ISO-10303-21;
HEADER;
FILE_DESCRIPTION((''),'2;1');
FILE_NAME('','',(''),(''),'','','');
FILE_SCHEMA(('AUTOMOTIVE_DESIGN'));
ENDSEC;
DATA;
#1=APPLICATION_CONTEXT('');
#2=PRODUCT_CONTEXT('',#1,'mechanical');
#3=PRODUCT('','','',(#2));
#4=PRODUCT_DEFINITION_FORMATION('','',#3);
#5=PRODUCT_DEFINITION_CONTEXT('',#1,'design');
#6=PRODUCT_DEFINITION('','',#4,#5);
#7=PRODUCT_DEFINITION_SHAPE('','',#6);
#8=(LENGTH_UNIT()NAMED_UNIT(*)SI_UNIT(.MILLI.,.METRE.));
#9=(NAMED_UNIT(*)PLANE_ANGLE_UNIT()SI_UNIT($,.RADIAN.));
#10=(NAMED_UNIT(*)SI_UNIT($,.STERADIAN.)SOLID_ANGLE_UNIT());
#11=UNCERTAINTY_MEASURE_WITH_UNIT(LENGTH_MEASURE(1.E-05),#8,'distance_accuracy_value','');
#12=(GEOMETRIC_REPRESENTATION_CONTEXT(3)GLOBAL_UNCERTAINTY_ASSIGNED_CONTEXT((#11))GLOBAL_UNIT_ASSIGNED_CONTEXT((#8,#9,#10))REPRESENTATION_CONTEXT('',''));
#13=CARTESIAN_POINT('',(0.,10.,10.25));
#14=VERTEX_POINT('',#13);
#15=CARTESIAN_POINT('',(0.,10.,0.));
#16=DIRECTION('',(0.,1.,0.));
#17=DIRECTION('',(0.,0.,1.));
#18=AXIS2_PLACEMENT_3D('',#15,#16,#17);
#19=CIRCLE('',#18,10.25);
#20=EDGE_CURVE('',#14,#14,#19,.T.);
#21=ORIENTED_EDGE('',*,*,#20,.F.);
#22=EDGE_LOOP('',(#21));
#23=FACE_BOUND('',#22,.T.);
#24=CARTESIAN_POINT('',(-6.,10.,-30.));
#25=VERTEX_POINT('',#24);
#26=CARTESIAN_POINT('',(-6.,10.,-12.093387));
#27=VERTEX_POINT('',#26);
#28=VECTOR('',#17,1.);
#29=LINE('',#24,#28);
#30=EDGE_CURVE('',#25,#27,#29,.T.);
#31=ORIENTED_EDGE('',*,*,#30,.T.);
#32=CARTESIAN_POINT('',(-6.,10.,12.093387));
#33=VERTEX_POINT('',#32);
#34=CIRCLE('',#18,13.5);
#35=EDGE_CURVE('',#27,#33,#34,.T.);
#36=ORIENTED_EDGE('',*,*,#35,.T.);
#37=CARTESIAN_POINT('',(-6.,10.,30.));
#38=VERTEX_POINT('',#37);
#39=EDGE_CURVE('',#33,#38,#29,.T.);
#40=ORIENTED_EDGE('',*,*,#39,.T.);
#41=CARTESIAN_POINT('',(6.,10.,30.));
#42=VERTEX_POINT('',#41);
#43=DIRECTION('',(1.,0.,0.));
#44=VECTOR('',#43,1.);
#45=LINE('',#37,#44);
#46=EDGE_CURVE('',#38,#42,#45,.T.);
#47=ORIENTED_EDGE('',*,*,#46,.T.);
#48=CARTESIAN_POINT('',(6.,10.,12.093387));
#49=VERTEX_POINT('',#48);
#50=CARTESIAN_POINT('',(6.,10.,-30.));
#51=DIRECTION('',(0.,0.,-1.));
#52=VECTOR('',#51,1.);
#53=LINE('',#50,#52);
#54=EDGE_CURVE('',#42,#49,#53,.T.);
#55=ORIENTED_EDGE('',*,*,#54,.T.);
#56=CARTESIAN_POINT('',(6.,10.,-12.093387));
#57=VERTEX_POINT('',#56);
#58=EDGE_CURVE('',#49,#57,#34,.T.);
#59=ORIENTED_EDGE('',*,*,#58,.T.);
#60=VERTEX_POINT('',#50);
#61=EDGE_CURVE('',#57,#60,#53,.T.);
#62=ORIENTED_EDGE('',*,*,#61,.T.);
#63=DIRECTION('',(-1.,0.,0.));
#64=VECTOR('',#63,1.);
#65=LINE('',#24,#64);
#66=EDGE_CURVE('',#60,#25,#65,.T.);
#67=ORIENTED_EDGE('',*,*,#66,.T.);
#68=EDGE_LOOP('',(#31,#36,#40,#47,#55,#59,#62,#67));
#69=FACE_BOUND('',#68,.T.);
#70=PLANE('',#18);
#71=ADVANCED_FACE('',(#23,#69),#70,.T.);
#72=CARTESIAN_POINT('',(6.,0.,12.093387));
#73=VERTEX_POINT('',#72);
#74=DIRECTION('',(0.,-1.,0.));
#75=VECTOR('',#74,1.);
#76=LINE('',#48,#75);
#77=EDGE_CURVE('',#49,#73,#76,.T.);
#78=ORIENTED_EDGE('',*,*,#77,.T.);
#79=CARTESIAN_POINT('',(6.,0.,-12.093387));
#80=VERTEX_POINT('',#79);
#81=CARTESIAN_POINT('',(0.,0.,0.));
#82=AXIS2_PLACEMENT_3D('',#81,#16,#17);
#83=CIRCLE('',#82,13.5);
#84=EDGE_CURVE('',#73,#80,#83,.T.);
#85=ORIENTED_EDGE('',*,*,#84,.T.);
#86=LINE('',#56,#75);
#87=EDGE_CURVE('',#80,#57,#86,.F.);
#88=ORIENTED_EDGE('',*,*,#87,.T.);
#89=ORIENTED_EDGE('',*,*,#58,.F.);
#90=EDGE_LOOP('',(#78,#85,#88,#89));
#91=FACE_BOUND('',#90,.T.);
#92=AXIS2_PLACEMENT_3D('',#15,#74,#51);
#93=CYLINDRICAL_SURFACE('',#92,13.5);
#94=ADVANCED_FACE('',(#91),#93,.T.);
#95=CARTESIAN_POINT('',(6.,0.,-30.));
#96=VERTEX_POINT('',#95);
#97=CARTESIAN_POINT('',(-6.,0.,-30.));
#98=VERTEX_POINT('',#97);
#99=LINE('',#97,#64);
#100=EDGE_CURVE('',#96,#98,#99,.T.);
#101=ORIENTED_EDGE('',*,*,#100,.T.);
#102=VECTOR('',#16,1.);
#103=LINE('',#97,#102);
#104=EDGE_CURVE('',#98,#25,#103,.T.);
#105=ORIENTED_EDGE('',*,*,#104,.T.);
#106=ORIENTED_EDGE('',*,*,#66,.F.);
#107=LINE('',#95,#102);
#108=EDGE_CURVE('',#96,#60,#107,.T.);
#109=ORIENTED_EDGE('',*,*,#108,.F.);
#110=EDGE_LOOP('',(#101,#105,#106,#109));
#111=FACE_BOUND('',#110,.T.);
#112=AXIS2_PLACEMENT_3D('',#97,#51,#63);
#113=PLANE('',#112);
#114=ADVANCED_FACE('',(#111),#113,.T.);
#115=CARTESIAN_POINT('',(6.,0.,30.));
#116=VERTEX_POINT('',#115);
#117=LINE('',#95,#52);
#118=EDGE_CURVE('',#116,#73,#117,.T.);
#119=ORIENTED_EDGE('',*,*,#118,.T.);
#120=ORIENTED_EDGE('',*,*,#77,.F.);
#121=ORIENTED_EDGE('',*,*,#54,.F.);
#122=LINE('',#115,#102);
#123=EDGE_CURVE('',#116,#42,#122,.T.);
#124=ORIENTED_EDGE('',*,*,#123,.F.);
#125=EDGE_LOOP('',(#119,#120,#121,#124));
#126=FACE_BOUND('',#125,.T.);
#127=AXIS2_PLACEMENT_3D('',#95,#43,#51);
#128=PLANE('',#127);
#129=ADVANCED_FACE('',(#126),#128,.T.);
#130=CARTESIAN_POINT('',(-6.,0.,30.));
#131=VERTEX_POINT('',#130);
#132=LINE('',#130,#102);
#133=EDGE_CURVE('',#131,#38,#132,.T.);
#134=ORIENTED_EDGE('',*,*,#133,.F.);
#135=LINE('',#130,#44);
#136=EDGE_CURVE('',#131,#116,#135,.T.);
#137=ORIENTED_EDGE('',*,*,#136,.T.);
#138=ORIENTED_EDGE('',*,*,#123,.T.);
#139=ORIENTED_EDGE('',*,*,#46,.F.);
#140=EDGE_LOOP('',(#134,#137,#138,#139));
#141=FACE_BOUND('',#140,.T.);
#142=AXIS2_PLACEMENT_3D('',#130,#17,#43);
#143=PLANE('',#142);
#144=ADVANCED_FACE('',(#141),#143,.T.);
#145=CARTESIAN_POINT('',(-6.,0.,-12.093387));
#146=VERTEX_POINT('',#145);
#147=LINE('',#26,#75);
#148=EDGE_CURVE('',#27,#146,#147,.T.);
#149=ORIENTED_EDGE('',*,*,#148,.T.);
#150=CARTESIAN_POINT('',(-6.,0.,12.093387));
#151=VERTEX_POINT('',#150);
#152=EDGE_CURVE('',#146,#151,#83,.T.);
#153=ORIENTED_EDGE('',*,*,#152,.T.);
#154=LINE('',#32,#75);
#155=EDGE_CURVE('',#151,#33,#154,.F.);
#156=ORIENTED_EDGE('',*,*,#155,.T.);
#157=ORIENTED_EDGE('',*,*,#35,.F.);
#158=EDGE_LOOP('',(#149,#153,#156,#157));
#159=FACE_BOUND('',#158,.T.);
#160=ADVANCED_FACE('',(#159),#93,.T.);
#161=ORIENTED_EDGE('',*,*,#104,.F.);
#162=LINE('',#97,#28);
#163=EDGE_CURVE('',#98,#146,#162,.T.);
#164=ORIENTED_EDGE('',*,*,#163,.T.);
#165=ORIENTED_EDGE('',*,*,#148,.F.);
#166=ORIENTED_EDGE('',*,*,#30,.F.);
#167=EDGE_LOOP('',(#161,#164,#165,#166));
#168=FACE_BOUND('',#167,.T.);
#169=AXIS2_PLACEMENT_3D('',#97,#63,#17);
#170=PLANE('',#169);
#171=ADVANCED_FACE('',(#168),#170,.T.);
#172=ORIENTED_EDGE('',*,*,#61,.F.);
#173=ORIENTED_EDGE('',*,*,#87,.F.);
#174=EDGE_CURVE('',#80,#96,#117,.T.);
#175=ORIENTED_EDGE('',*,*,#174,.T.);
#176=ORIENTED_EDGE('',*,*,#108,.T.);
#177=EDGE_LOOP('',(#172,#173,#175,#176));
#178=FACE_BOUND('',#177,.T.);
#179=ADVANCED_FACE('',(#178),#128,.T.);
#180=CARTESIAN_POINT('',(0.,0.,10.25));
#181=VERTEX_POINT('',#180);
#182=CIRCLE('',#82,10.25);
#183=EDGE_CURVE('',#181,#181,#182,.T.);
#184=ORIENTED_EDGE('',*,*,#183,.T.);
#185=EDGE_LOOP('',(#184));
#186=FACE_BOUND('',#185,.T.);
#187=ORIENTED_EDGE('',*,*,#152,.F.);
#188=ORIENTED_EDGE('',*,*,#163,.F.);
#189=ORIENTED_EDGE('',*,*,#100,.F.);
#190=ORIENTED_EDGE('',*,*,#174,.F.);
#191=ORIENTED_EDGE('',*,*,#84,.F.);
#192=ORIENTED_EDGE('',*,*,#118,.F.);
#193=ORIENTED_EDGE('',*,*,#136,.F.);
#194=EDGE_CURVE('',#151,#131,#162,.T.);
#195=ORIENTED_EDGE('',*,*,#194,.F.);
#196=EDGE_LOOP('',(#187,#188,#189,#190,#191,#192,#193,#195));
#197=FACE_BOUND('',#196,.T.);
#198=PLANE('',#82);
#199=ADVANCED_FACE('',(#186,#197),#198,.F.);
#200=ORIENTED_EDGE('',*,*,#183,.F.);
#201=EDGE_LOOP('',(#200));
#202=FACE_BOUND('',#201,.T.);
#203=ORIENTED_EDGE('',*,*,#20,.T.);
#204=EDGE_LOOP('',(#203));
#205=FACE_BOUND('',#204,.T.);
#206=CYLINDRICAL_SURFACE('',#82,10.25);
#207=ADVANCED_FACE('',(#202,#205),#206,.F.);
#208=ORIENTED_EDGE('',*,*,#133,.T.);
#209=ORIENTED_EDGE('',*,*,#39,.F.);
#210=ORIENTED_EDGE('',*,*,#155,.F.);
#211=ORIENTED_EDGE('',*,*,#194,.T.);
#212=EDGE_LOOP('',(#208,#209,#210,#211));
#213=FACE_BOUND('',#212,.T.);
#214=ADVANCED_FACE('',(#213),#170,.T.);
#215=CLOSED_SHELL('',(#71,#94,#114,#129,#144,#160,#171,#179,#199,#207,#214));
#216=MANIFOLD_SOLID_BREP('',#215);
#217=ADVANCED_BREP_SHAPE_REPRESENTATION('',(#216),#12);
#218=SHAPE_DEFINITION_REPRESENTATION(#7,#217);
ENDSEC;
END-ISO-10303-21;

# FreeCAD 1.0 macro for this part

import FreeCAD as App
import Part
import Sketcher

V = App.Vector

doc = App.newDocument("Part")
params = doc.addObject("Spreadsheet::Sheet", "Params")
for row, (alias, value) in enumerate([
    ("sketch1_diameter", "27 mm"),
    ("pad1_length", "10 mm"),
    ("sketch2_width", "12 mm"),
    ("sketch2_height", "60 mm"),
    ("pad2_length", "10 mm"),
    ("sketch3_diameter", "20.5 mm"),
    ("pocket1_length", "10 mm"),
], start=1):
    params.set(f"A{row}", alias)
    params.set(f"B{row}", "=" + value)
    params.setAlias(f"B{row}", alias)

body = doc.addObject("PartDesign::Body", "Body")

# Sketch on XZ plane
sketch1 = doc.addObject("Sketcher::SketchObject", "Sketch")
body.addObject(sketch1)
sketch1.AttachmentSupport = (doc.XZ_Plane, [""])
sketch1.MapMode = "FlatFace"
sketch1.addGeometry(Part.Circle(V(0, 0, 0), V(0, 0, 1), 13.5), False)
sketch1.addConstraint(Sketcher.Constraint("Coincident", 0, 3, -1, 1))
sketch1.addConstraint(Sketcher.Constraint("Diameter", 0, 27.0))
sketch1.setExpression("Constraints[1]", "Params.sketch1_diameter")
pad1 = doc.addObject("PartDesign::Pad", "Pad")
body.addObject(pad1)
pad1.Profile = sketch1
pad1.setExpression("Length", "Params.pad1_length")
pad1.Reversed = True

# Sketch on XZ plane
sketch2 = doc.addObject("Sketcher::SketchObject", "Sketch001")
body.addObject(sketch2)
sketch2.AttachmentSupport = (doc.XZ_Plane, [""])
sketch2.MapMode = "FlatFace"
sketch2.AttachmentOffset = App.Placement(V(0, 0, -10), App.Rotation())
sketch2.addGeometry(Part.LineSegment(V(-6, -30, 0), V(-6, 30, 0)), False)
sketch2.addGeometry(Part.LineSegment(V(-6, 30, 0), V(6, 30, 0)), False)
sketch2.addGeometry(Part.LineSegment(V(6, 30, 0), V(6, -30, 0)), False)
sketch2.addGeometry(Part.LineSegment(V(6, -30, 0), V(-6, -30, 0)), False)
sketch2.addConstraint(Sketcher.Constraint("Coincident", 0, 2, 1, 1))
sketch2.addConstraint(Sketcher.Constraint("Coincident", 1, 2, 2, 1))
sketch2.addConstraint(Sketcher.Constraint("Coincident", 2, 2, 3, 1))
sketch2.addConstraint(Sketcher.Constraint("Coincident", 3, 2, 0, 1))
sketch2.addConstraint(Sketcher.Constraint("Vertical", 0))
sketch2.addConstraint(Sketcher.Constraint("Horizontal", 1))
sketch2.addConstraint(Sketcher.Constraint("Vertical", 2))
sketch2.addConstraint(Sketcher.Constraint("Horizontal", 3))
sketch2.addConstraint(Sketcher.Constraint("Symmetric", 0, 2, 2, 2, -1, 1))
sketch2.addConstraint(Sketcher.Constraint("DistanceX", 1, 1, 1, 2, 12.0))
sketch2.addConstraint(Sketcher.Constraint("DistanceY", 0, 1, 0, 2, 60.0))
sketch2.setExpression("Constraints[9]", "Params.sketch2_width")
sketch2.setExpression("Constraints[10]", "Params.sketch2_height")
pad2 = doc.addObject("PartDesign::Pad", "Pad001")
body.addObject(pad2)
pad2.Profile = sketch2
pad2.setExpression("Length", "Params.pad2_length")

# Sketch on XZ plane
sketch3 = doc.addObject("Sketcher::SketchObject", "Sketch002")
body.addObject(sketch3)
sketch3.AttachmentSupport = (doc.XZ_Plane, [""])
sketch3.MapMode = "FlatFace"
sketch3.AttachmentOffset = App.Placement(V(0, 0, -10), App.Rotation())
sketch3.addGeometry(Part.Circle(V(0, 0, 0), V(0, 0, 1), 10.25), False)
sketch3.addConstraint(Sketcher.Constraint("Coincident", 0, 3, -1, 1))
sketch3.addConstraint(Sketcher.Constraint("Diameter", 0, 20.5))
sketch3.setExpression("Constraints[1]", "Params.sketch3_diameter")
pocket1 = doc.addObject("PartDesign::Pocket", "Pocket")
body.addObject(pocket1)
pocket1.Profile = sketch3
pocket1.setExpression("Length", "Params.pocket1_length")
pocket1.Reversed = True

doc.recompute()
